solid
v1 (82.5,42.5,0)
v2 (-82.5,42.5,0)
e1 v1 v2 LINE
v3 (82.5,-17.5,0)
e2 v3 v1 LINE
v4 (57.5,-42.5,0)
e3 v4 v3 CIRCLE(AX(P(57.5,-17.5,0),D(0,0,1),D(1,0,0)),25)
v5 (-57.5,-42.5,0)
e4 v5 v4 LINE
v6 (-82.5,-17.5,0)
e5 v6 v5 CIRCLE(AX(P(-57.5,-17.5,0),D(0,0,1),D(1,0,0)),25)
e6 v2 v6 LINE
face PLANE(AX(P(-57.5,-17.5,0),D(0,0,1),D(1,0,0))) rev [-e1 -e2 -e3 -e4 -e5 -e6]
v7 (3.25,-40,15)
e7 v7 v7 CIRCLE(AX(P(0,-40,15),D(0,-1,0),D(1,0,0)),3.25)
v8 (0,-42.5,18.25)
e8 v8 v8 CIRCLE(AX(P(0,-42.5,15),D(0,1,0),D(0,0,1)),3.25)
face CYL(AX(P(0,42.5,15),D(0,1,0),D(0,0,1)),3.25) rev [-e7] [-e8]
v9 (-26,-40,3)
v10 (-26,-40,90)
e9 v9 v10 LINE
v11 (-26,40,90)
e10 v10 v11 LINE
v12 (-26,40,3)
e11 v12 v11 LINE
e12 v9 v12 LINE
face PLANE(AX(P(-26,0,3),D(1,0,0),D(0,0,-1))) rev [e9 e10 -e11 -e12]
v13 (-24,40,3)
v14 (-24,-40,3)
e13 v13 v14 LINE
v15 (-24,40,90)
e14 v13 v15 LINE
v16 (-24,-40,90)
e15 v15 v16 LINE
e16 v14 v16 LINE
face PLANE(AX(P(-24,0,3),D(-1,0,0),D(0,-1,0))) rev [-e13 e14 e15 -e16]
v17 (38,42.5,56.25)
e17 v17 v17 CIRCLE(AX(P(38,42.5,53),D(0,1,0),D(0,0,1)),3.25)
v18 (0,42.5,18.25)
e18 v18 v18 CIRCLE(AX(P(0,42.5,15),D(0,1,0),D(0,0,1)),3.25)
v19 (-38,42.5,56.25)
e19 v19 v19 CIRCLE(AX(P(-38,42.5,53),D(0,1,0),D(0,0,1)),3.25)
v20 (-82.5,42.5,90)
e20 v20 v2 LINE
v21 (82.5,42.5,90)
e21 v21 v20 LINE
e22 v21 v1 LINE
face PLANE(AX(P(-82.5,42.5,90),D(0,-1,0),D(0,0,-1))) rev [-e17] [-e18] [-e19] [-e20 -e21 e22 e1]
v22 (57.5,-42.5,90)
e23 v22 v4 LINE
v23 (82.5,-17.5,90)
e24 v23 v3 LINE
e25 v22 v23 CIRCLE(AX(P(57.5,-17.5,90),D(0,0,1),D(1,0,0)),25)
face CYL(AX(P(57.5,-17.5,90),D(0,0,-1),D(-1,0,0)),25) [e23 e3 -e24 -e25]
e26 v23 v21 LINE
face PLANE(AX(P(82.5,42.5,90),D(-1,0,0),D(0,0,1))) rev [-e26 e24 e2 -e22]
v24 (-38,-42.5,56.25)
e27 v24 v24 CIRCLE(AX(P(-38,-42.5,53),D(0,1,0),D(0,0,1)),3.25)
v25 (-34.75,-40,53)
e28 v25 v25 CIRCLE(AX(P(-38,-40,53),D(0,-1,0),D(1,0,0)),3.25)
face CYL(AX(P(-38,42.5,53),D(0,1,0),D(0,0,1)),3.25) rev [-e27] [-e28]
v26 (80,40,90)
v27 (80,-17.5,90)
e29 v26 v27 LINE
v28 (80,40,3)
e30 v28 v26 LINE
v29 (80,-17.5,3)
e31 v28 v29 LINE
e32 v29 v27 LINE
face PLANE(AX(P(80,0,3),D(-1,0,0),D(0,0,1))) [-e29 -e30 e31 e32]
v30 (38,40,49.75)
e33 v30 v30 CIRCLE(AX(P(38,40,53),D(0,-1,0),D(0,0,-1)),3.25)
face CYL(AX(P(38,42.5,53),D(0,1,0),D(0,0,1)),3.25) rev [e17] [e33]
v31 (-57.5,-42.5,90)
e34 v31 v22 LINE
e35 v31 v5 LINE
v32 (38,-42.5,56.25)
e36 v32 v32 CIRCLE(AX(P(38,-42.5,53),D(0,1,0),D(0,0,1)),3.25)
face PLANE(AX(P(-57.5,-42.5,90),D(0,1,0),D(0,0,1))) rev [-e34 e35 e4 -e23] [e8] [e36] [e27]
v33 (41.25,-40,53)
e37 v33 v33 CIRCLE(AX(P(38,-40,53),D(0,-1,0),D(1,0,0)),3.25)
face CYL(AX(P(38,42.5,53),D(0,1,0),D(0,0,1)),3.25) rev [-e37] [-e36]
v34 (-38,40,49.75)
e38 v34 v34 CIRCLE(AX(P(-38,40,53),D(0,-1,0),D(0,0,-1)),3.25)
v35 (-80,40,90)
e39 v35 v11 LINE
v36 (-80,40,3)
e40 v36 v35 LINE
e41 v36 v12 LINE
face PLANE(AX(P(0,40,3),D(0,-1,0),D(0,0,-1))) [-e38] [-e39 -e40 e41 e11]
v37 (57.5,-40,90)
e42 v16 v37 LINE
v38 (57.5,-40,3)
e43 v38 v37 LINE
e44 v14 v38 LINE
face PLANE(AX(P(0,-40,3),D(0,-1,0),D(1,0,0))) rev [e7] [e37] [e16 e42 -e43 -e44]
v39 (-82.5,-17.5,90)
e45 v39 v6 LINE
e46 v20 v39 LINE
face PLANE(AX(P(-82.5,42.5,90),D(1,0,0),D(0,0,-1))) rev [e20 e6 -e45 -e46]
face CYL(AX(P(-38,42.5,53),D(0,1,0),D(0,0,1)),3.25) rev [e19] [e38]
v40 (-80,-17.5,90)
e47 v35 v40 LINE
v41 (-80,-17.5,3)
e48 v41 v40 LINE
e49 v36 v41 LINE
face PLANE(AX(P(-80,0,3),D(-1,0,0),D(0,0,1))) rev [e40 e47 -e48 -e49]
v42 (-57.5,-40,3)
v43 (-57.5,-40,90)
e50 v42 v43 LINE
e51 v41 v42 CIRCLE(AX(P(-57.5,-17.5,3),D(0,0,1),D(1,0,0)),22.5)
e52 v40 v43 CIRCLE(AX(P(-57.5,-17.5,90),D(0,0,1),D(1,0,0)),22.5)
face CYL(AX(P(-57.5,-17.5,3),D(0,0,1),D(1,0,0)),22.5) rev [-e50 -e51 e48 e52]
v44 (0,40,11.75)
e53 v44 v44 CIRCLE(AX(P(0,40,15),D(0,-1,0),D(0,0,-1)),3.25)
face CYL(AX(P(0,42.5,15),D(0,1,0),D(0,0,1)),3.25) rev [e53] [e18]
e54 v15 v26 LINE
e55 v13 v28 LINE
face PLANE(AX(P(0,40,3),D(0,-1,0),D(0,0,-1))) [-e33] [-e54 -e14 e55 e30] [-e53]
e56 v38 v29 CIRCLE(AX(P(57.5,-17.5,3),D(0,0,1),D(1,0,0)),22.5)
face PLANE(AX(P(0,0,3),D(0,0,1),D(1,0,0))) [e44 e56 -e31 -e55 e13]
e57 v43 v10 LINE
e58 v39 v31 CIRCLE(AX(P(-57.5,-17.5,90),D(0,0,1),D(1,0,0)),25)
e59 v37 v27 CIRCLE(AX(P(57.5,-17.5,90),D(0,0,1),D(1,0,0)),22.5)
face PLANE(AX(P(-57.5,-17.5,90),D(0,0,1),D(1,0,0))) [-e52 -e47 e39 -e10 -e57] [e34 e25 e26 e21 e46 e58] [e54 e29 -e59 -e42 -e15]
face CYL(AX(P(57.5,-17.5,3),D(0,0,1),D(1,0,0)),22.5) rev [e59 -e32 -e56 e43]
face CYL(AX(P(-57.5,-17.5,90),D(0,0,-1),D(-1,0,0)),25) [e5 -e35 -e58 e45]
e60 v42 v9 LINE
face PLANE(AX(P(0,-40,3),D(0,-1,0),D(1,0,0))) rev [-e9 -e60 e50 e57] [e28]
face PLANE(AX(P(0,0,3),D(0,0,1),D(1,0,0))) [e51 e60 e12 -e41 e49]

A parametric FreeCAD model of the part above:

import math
import FreeCAD as App
import Part
import Sketcher
from FreeCAD import Vector
Q = App.Units.Quantity

doc = App.newDocument("Part")
body = doc.addObject("PartDesign::Body", "Body")

# Sketch on XY plane
sketch1 = body.newObject("Sketcher::SketchObject", "Sketch")
sketch1.AttachmentSupport = (doc.getObject("XY_Plane"), [""])
sketch1.MapMode = "FlatFace"
sketch1.addGeometry(Part.LineSegment(Vector(82, 42, 0), Vector(-82, 42, 0)), False)
sketch1.addGeometry(Part.LineSegment(Vector(-82, 42, 0), Vector(-82, -18, 0)), False)
sketch1.addGeometry(Part.ArcOfCircle(Part.Circle(Vector(-58, -18, 0), Vector(0, 0, 1), 25), math.radians(180), math.radians(270)), False)
sketch1.addGeometry(Part.LineSegment(Vector(-58, -42, 0), Vector(58, -42, 0)), False)
sketch1.addGeometry(Part.ArcOfCircle(Part.Circle(Vector(58, -18, 0), Vector(0, 0, 1), 25), math.radians(-90), math.radians(0)), False)
sketch1.addGeometry(Part.LineSegment(Vector(82, -18, 0), Vector(82, 42, 0)), False)
sketch1.addConstraint(Sketcher.Constraint("Coincident", 0, 2, 1, 1))
sketch1.addConstraint(Sketcher.Constraint("Tangent", 1, 2, 2, 1))
sketch1.addConstraint(Sketcher.Constraint("Tangent", 2, 2, 3, 1))
sketch1.addConstraint(Sketcher.Constraint("Tangent", 3, 2, 4, 1))
sketch1.addConstraint(Sketcher.Constraint("Tangent", 4, 2, 5, 1))
sketch1.addConstraint(Sketcher.Constraint("Coincident", 5, 2, 0, 1))
sketch1.addConstraint(Sketcher.Constraint("Horizontal", 0))
sketch1.addConstraint(Sketcher.Constraint("Vertical", 1))
sketch1.addConstraint(Sketcher.Constraint("Horizontal", 3))
sketch1.addConstraint(Sketcher.Constraint("Vertical", 5))
sketch1.addConstraint(Sketcher.Constraint("Equal", 2, 4))
sketch1.addConstraint(Sketcher.Constraint("Radius", 2, Q("25 mm")))
sketch1.addConstraint(Sketcher.Constraint("DistanceX", 0, 2, 0, 1, Q("165 mm")))
sketch1.addConstraint(Sketcher.Constraint("DistanceY", 1, 2, 1, 1, Q("60 mm")))
sketch1.addConstraint(Sketcher.Constraint("DistanceX", 2, 3, -1, 1, Q("57.5 mm")))
sketch1.addConstraint(Sketcher.Constraint("DistanceY", 2, 3, -1, 1, Q("17.5 mm")))
pad1 = body.newObject("PartDesign::Pad", "Pad")
pad1.Profile = sketch1
pad1.Length = 90

# Sketch on XY plane
sketch2 = body.newObject("Sketcher::SketchObject", "Sketch001")
sketch2.AttachmentSupport = (doc.getObject("XY_Plane"), [""])
sketch2.MapMode = "FlatFace"
sketch2.AttachmentOffset = App.Placement(Vector(0, 0, 90), App.Rotation())
sketch2.addGeometry(Part.LineSegment(Vector(80, -18, 0), Vector(80, 40, 0)), False)
sketch2.addGeometry(Part.LineSegment(Vector(80, 40, 0), Vector(-24, 40, 0)), False)
sketch2.addGeometry(Part.LineSegment(Vector(-24, 40, 0), Vector(-24, -40, 0)), False)
sketch2.addGeometry(Part.LineSegment(Vector(-24, -40, 0), Vector(58, -40, 0)), False)
sketch2.addGeometry(Part.ArcOfCircle(Part.Circle(Vector(58, -18, 0), Vector(0, 0, 1), 22), math.radians(-90), math.radians(0)), False)
sketch2.addGeometry(Part.LineSegment(Vector(-26, -40, 0), Vector(-26, 40, 0)), False)
sketch2.addGeometry(Part.LineSegment(Vector(-26, 40, 0), Vector(-80, 40, 0)), False)
sketch2.addGeometry(Part.LineSegment(Vector(-80, 40, 0), Vector(-80, -18, 0)), False)
sketch2.addGeometry(Part.ArcOfCircle(Part.Circle(Vector(-58, -18, 0), Vector(0, 0, 1), 22), math.radians(180), math.radians(270)), False)
sketch2.addGeometry(Part.LineSegment(Vector(-58, -40, 0), Vector(-26, -40, 0)), False)
sketch2.addConstraint(Sketcher.Constraint("Coincident", 0, 2, 1, 1))
sketch2.addConstraint(Sketcher.Constraint("Coincident", 1, 2, 2, 1))
sketch2.addConstraint(Sketcher.Constraint("Coincident", 2, 2, 3, 1))
sketch2.addConstraint(Sketcher.Constraint("Tangent", 3, 2, 4, 1))
sketch2.addConstraint(Sketcher.Constraint("Tangent", 4, 2, 0, 1))
sketch2.addConstraint(Sketcher.Constraint("Coincident", 5, 2, 6, 1))
sketch2.addConstraint(Sketcher.Constraint("Coincident", 6, 2, 7, 1))
sketch2.addConstraint(Sketcher.Constraint("Tangent", 7, 2, 8, 1))
sketch2.addConstraint(Sketcher.Constraint("Tangent", 8, 2, 9, 1))
sketch2.addConstraint(Sketcher.Constraint("Coincident", 9, 2, 5, 1))
sketch2.addConstraint(Sketcher.Constraint("Vertical", 0))
sketch2.addConstraint(Sketcher.Constraint("Horizontal", 1))
sketch2.addConstraint(Sketcher.Constraint("Vertical", 2))
sketch2.addConstraint(Sketcher.Constraint("Horizontal", 3))
sketch2.addConstraint(Sketcher.Constraint("Vertical", 5))
sketch2.addConstraint(Sketcher.Constraint("Horizontal", 6))
sketch2.addConstraint(Sketcher.Constraint("Vertical", 7))
sketch2.addConstraint(Sketcher.Constraint("Horizontal", 9))
sketch2.addConstraint(Sketcher.Constraint("Equal", 4, 8))
sketch2.addConstraint(Sketcher.Constraint("Symmetric", 4, 3, 8, 3, -2))
sketch2.addConstraint(Sketcher.Constraint("Horizontal", 1, 2, 5, 2))
sketch2.addConstraint(Sketcher.Constraint("Radius", 4, Q("22.5 mm")))
sketch2.addConstraint(Sketcher.Constraint("DistanceX", 1, 2, 1, 1, Q("104 mm")))
sketch2.addConstraint(Sketcher.Constraint("DistanceX", 6, 2, 6, 1, Q("54 mm")))
sketch2.addConstraint(Sketcher.Constraint("DistanceY", 2, 2, 2, 1, Q("80 mm")))
sketch2.addConstraint(Sketcher.Constraint("DistanceX", -1, 1, 0, 2, Q("80 mm")))
sketch2.addConstraint(Sketcher.Constraint("DistanceY", -1, 1, 0, 2, Q("40 mm")))
pocket1 = body.newObject("PartDesign::Pocket", "Pocket")
pocket1.Profile = sketch2
pocket1.Length = 87

# Sketch on XZ plane
sketch3 = body.newObject("Sketcher::SketchObject", "Sketch002")
sketch3.AttachmentSupport = (doc.getObject("XZ_Plane"), [""])
sketch3.MapMode = "FlatFace"
sketch3.AttachmentOffset = App.Placement(Vector(0, 0, -42.5), App.Rotation())
sketch3.addGeometry(Part.Circle(Vector(0, 15, 0), Vector(0, 0, 1), 3.2), False)
sketch3.addGeometry(Part.Circle(Vector(38, 53, 0), Vector(0, 0, 1), 3.2), False)
sketch3.addGeometry(Part.Circle(Vector(-38, 53, 0), Vector(0, 0, 1), 3.2), False)
sketch3.addConstraint(Sketcher.Constraint("Equal", 0, 1))
sketch3.addConstraint(Sketcher.Constraint("Equal", 1, 2))
sketch3.addConstraint(Sketcher.Constraint("Symmetric", 1, 3, 2, 3, -2))
sketch3.addConstraint(Sketcher.Constraint("PointOnObject", 0, 3, -2))
sketch3.addConstraint(Sketcher.Constraint("Diameter", 0, Q("6.5 mm")))
sketch3.addConstraint(Sketcher.Constraint("DistanceY", -1, 1, 0, 3, Q("15 mm")))
sketch3.addConstraint(Sketcher.Constraint("DistanceX", -1, 1, 1, 3, Q("38 mm")))
sketch3.addConstraint(Sketcher.Constraint("DistanceY", -1, 1, 1, 3, Q("53 mm")))
doc.recompute()
hole = body.newObject("PartDesign::Hole", "Hole")
hole.Profile = sketch3
hole.ThreadType = "None"
hole.Diameter = 6.5
hole.DepthType = "ThroughAll"
hole.Reversed = True

doc.recompute()
